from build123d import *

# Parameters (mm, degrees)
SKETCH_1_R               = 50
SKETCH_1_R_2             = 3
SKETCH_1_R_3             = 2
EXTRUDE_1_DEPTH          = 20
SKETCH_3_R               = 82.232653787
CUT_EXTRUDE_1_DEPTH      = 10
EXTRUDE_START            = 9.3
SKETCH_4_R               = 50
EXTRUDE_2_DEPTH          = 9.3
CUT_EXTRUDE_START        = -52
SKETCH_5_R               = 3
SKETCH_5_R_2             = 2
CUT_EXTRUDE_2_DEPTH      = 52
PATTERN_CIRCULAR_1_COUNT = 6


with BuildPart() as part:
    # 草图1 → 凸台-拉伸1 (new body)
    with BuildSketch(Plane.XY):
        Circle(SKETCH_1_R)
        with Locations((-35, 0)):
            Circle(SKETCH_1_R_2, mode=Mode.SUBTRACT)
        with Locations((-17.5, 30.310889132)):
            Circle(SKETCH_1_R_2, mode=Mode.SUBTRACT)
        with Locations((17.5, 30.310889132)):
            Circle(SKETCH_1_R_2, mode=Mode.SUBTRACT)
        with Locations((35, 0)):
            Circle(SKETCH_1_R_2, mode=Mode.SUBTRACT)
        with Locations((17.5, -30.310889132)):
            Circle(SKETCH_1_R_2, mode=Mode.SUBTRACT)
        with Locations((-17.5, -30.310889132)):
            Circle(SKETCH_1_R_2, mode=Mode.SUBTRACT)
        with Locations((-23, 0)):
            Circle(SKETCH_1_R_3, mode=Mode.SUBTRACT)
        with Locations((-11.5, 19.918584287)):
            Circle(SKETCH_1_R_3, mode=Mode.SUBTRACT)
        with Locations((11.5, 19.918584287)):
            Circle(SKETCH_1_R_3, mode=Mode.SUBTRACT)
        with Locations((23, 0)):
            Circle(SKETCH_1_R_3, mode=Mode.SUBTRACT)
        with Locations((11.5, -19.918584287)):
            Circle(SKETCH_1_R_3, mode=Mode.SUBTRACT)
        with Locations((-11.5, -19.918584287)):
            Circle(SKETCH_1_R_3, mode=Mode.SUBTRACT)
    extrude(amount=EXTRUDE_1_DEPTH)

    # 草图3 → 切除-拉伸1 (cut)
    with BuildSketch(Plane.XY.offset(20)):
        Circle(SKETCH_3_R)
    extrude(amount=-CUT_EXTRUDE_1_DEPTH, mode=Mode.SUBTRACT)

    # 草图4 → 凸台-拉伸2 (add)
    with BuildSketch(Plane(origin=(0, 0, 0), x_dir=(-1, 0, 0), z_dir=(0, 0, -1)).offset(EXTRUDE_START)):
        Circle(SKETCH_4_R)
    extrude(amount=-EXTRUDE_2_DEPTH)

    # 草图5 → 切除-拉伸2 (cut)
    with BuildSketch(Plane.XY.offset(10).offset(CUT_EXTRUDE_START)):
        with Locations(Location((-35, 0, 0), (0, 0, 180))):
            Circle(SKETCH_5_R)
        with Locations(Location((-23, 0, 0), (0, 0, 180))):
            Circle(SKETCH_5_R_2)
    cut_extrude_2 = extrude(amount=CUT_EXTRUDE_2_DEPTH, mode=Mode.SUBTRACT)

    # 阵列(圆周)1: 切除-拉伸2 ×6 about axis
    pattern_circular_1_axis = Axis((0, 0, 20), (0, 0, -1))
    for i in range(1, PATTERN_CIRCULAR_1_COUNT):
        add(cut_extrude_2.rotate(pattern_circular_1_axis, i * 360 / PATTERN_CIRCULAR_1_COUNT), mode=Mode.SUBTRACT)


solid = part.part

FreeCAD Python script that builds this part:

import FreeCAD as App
import Part
import Sketcher
from FreeCAD import Vector
Q = App.Units.Quantity

doc = App.newDocument("Part")
body = doc.addObject("PartDesign::Body", "Body")

# Sketch on XY plane
sketch1 = body.newObject("Sketcher::SketchObject", "Sketch")
sketch1.AttachmentSupport = (doc.getObject("XY_Plane"), [""])
sketch1.MapMode = "FlatFace"
sketch1.addGeometry([
    Part.Circle(Vector(0, 0, 0), Vector(0, 0, 1), 50),  # 0
    Part.Circle(Vector(-17.5, -30.3, 0), Vector(0, 0, 1), 3),  # 1
    Part.Circle(Vector(-11.5, -19.9, 0), Vector(0, 0, 1), 2),  # 2
    Part.Circle(Vector(17.5, -30.3, 0), Vector(0, 0, 1), 3),  # 3
    Part.Circle(Vector(11.5, -19.9, 0), Vector(0, 0, 1), 2),  # 4
    Part.Circle(Vector(-35, 0, 0), Vector(0, 0, 1), 3),  # 5
    Part.Circle(Vector(-23, 0, 0), Vector(0, 0, 1), 2),  # 6
    Part.Circle(Vector(-11.5, 19.9, 0), Vector(0, 0, 1), 2),  # 7
    Part.Circle(Vector(-17.5, 30.3, 0), Vector(0, 0, 1), 3),  # 8
    Part.Circle(Vector(23, 0, 0), Vector(0, 0, 1), 2),  # 9
    Part.Circle(Vector(35, 0, 0), Vector(0, 0, 1), 3),  # 10
    Part.Circle(Vector(11.5, 19.9, 0), Vector(0, 0, 1), 2),  # 11
    Part.Circle(Vector(17.5, 30.3, 0), Vector(0, 0, 1), 3),  # 12
], False)
sketch1.addConstraint([
    Sketcher.Constraint("Coincident", 0, 3, -1, 1),
    Sketcher.Constraint("Equal", 1, 3),
    Sketcher.Constraint("Equal", 2, 4),
    Sketcher.Constraint("Equal", 3, 5),
    Sketcher.Constraint("Equal", 4, 6),
    Sketcher.Constraint("Equal", 6, 7),
    Sketcher.Constraint("Equal", 5, 8),
    Sketcher.Constraint("Equal", 7, 9),
    Sketcher.Constraint("Equal", 8, 10),
    Sketcher.Constraint("Equal", 9, 11),
    Sketcher.Constraint("Equal", 10, 12),
    Sketcher.Constraint("Symmetric", 4, 3, 7, 3, -1, 1),
    Sketcher.Constraint("Symmetric", 3, 3, 8, 3, -1, 1),
    Sketcher.Constraint("Symmetric", 6, 3, 9, 3, -1, 1),
    Sketcher.Constraint("Symmetric", 5, 3, 10, 3, -1, 1),
    Sketcher.Constraint("Symmetric", 2, 3, 11, 3, -1, 1),
    Sketcher.Constraint("Symmetric", 1, 3, 12, 3, -1, 1),
    Sketcher.Constraint("Symmetric", 1, 3, 3, 3, -2),
    Sketcher.Constraint("Symmetric", 2, 3, 4, 3, -2),
    Sketcher.Constraint("PointOnObject", 5, 3, -1),
    Sketcher.Constraint("PointOnObject", 6, 3, -1),
    Sketcher.Constraint("Diameter", 0, Q("100 mm")),
    Sketcher.Constraint("Diameter", 1, Q("6 mm")),
    Sketcher.Constraint("Diameter", 2, Q("4 mm")),
    Sketcher.Constraint("DistanceX", 5, 3, -1, 1, Q("35 mm")),
    Sketcher.Constraint("DistanceX", 6, 3, -1, 1, Q("23 mm")),
    Sketcher.Constraint("DistanceX", 1, 3, 2, 3, Q("6 mm")),
    Sketcher.Constraint("DistanceX", 2, 3, 3, 3, Q("29 mm")),
    Sketcher.Constraint("DistanceY", 1, 3, -1, 1, Q("30.310889 mm")),
    Sketcher.Constraint("DistanceY", 2, 3, 7, 3, Q("39.837169 mm")),
])
pad1 = body.newObject("PartDesign::Pad", "Pad")
pad1.Profile = sketch1
pad1.Length = 20

# Sketch on XY plane
sketch2 = body.newObject("Sketcher::SketchObject", "Sketch001")
sketch2.AttachmentSupport = (doc.getObject("XY_Plane"), [""])
sketch2.MapMode = "FlatFace"
sketch2.AttachmentOffset = App.Placement(Vector(0, 0, 20), App.Rotation())
sketch2.addGeometry(Part.Circle(Vector(0, 0, 0), Vector(0, 0, 1), 82), False)
sketch2.addConstraint([
    Sketcher.Constraint("Coincident", 0, 3, -1, 1),
    Sketcher.Constraint("Diameter", 0, Q("164.465308 mm")),
])
pocket1 = body.newObject("PartDesign::Pocket", "Pocket")
pocket1.Profile = sketch2
pocket1.Length = 10

# Sketch on XY plane
sketch3 = body.newObject("Sketcher::SketchObject", "Sketch002")
sketch3.AttachmentSupport = (doc.getObject("XY_Plane"), [""])
sketch3.MapMode = "FlatFace"
sketch3.AttachmentOffset = App.Placement(Vector(0, 0, -9.3), App.Rotation())
sketch3.addGeometry(Part.Circle(Vector(0, 0, 0), Vector(0, 0, 1), 50), False)
sketch3.addConstraint([
    Sketcher.Constraint("Coincident", 0, 3, -1, 1),
    Sketcher.Constraint("Diameter", 0, Q("100 mm")),
])
pad2 = body.newObject("PartDesign::Pad", "Pad001")
pad2.Profile = sketch3
pad2.Length = 9.3

# Sketch on XY plane
sketch4 = body.newObject("Sketcher::SketchObject", "Sketch003")
sketch4.AttachmentSupport = (doc.getObject("XY_Plane"), [""])
sketch4.MapMode = "FlatFace"
sketch4.AttachmentOffset = App.Placement(Vector(0, 0, -42), App.Rotation())
sketch4.addGeometry([
    Part.Circle(Vector(-35, 0, 0), Vector(0, 0, 1), 3),
    Part.Circle(Vector(-23, 0, 0), Vector(0, 0, 1), 2),
], False)
sketch4.addConstraint([
    Sketcher.Constraint("PointOnObject", 0, 3, -1),
    Sketcher.Constraint("PointOnObject", 1, 3, -1),
    Sketcher.Constraint("Diameter", 0, Q("6 mm")),
    Sketcher.Constraint("Diameter", 1, Q("4 mm")),
    Sketcher.Constraint("DistanceX", 0, 3, -1, 1, Q("35 mm")),
    Sketcher.Constraint("DistanceX", 1, 3, -1, 1, Q("23 mm")),
])
pocket2 = body.newObject("PartDesign::Pocket", "Pocket001")
pocket2.Profile = sketch4
pocket2.Length = 52
pocket2.Reversed = True
doc.recompute()

polarpattern = body.newObject("PartDesign::PolarPattern", "PolarPattern")
polarpattern.Originals = [pocket2]
polarpattern.Axis = (doc.getObject("Z_Axis"), [""])
polarpattern.Angle = 360
polarpattern.Occurrences = 6
body.Tip = polarpattern

doc.recompute()
